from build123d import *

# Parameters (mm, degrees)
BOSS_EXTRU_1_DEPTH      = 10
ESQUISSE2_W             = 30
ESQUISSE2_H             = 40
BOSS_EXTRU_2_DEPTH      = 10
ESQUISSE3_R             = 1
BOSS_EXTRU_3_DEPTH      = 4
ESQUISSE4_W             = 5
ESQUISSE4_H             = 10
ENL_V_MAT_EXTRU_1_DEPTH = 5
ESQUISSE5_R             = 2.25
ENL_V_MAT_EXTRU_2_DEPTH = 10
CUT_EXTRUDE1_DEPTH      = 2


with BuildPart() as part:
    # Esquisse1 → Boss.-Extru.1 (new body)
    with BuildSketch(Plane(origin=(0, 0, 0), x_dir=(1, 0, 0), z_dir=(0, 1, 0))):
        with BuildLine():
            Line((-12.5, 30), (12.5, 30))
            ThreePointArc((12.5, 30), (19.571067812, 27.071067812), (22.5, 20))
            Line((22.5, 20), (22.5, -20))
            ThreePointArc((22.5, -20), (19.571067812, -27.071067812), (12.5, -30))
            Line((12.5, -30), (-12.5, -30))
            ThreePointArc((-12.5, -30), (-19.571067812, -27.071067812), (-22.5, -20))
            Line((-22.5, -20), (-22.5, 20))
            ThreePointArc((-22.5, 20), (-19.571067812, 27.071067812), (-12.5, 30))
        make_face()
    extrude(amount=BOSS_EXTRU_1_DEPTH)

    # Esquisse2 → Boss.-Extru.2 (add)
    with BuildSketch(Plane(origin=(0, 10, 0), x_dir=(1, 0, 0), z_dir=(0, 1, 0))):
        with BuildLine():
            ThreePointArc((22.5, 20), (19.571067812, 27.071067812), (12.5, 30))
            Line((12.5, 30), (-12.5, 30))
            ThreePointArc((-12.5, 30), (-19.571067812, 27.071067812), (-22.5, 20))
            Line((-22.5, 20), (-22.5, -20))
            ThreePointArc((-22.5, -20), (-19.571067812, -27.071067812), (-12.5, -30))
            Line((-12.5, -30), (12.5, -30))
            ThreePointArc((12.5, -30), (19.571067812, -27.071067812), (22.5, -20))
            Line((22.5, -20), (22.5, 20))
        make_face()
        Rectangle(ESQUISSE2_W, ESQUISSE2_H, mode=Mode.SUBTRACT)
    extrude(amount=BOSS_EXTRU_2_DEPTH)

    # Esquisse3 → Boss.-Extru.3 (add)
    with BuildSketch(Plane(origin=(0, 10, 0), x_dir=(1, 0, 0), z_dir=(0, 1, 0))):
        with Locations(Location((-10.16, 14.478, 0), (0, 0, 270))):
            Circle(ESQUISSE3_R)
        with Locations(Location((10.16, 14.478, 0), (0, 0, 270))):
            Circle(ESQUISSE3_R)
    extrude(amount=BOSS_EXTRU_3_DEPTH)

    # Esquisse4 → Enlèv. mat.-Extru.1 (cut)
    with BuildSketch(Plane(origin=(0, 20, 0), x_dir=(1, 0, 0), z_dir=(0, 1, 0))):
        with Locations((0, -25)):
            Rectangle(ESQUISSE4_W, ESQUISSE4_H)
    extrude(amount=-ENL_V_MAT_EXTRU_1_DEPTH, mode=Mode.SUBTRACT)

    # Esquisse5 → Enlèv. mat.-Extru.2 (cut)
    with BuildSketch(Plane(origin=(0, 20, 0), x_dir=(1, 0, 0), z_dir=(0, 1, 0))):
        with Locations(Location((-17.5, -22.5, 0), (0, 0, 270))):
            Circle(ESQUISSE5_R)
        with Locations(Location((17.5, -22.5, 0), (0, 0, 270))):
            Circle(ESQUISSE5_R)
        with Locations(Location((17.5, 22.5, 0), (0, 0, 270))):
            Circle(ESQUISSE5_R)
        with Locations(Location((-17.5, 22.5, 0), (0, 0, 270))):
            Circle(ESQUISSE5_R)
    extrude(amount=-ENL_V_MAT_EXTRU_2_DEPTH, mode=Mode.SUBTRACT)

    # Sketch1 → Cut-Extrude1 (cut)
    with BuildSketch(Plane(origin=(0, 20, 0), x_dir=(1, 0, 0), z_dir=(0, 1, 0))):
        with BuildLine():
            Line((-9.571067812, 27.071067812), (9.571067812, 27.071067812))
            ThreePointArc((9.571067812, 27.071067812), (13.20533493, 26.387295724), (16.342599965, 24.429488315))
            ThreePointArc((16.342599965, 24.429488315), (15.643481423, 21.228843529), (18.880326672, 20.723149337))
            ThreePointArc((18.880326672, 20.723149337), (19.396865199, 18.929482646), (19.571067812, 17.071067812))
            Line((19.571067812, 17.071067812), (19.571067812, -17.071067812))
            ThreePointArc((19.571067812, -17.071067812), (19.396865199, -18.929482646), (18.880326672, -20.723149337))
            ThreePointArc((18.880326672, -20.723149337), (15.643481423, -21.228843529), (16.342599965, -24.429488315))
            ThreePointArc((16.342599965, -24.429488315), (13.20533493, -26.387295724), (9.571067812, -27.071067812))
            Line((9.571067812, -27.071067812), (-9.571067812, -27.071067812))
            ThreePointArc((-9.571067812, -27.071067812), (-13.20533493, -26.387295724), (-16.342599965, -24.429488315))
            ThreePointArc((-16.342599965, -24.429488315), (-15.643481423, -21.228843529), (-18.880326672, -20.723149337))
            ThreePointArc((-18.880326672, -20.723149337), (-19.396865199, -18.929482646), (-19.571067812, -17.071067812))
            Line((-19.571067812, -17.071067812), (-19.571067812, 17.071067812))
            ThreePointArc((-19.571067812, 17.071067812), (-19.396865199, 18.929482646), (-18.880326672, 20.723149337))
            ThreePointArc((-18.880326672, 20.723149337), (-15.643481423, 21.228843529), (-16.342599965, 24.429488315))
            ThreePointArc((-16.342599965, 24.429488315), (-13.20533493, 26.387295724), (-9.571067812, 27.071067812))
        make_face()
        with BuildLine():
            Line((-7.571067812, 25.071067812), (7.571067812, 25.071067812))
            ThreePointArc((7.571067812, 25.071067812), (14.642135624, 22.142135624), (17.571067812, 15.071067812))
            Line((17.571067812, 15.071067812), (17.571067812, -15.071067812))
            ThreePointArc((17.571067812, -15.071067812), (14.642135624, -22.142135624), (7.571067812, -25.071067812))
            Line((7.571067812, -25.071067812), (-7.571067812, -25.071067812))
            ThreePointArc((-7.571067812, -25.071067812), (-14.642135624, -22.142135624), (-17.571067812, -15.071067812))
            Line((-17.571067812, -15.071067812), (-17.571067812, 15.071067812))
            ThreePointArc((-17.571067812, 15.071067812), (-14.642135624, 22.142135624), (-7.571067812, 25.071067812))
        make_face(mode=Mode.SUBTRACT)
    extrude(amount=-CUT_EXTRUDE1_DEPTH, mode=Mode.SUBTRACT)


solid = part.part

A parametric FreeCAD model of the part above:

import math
import FreeCAD as App
import Part
import Sketcher
Q = App.Units.Quantity


def add_polygon(sketch, points):
    """Adds a closed chain of lines whose ends are joined by coincident constraints."""
    first, n = sketch.GeometryCount, len(points)
    for a, b in zip(points, points[1:] + points[:1]):
        sketch.addGeometry(Part.LineSegment(App.Vector(*a, 0), App.Vector(*b, 0)), False)
    for i in range(n):
        sketch.addConstraint(Sketcher.Constraint("Coincident", first + i, 2, first + (i + 1) % n, 1))

doc = App.newDocument("Part")
body = doc.addObject("PartDesign::Body", "Body")

# Sketch on XZ plane
sketch1 = body.newObject("Sketcher::SketchObject", "Sketch")
sketch1.AttachmentSupport = (doc.getObject("XZ_Plane"), [""])
sketch1.MapMode = "FlatFace"
sketch1.addGeometry([
    Part.LineSegment(App.Vector(12.5, -30, 0), App.Vector(-12.5, -30, 0)),  # 0
    Part.ArcOfCircle(Part.Circle(App.Vector(-12.5, -20, 0), App.Vector(0, 0, 1), 10), math.radians(180), math.radians(270)),  # 1
    Part.LineSegment(App.Vector(-22.5, -20, 0), App.Vector(-22.5, 20, 0)),  # 2
    Part.ArcOfCircle(Part.Circle(App.Vector(-12.5, 20, 0), App.Vector(0, 0, 1), 10), math.radians(90), math.radians(180)),  # 3
    Part.LineSegment(App.Vector(-12.5, 30, 0), App.Vector(12.5, 30, 0)),  # 4
    Part.ArcOfCircle(Part.Circle(App.Vector(12.5, 20, 0), App.Vector(0, 0, 1), 10), math.radians(0), math.radians(90)),  # 5
    Part.LineSegment(App.Vector(22.5, 20, 0), App.Vector(22.5, -20, 0)),  # 6
    Part.ArcOfCircle(Part.Circle(App.Vector(12.5, -20, 0), App.Vector(0, 0, 1), 10), math.radians(-90), math.radians(0)),  # 7
], False)
sketch1.addConstraint([
    Sketcher.Constraint("Tangent", 0, 2, 1, 2),
    Sketcher.Constraint("Tangent", 1, 1, 2, 1),
    Sketcher.Constraint("Tangent", 2, 2, 3, 2),
    Sketcher.Constraint("Tangent", 3, 1, 4, 1),
    Sketcher.Constraint("Tangent", 4, 2, 5, 2),
    Sketcher.Constraint("Tangent", 5, 1, 6, 1),
    Sketcher.Constraint("Tangent", 6, 2, 7, 2),
    Sketcher.Constraint("Tangent", 7, 1, 0, 1),
    Sketcher.Constraint("Horizontal", 0),
    Sketcher.Constraint("Vertical", 2),
    Sketcher.Constraint("Horizontal", 4),
    Sketcher.Constraint("Vertical", 6),
    Sketcher.Constraint("Equal", 1, 3),
    Sketcher.Constraint("Equal", 3, 5),
    Sketcher.Constraint("Equal", 5, 7),
    Sketcher.Constraint("Symmetric", 1, 3, 5, 3, -1, 1),
    Sketcher.Constraint("Radius", 1, Q("10 mm")),
    Sketcher.Constraint("DistanceX", 0, 2, 0, 1, Q("25 mm")),
    Sketcher.Constraint("DistanceY", 2, 1, 2, 2, Q("40 mm")),
])
pad1 = body.newObject("PartDesign::Pad", "Pad")
pad1.Profile = sketch1
pad1.Length = 10
pad1.Reversed = True

# Sketch on XZ plane
sketch2 = body.newObject("Sketcher::SketchObject", "Sketch001")
sketch2.AttachmentSupport = (doc.getObject("XZ_Plane"), [""])
sketch2.MapMode = "FlatFace"
sketch2.AttachmentOffset = App.Placement(App.Vector(0, 0, -10), App.Rotation())
sketch2.addGeometry(Part.ArcOfCircle(Part.Circle(App.Vector(12.5, -20, 0), App.Vector(0, 0, 1), 10), math.radians(-90), math.radians(0)), False)  # 0
sketch2.addGeometry(Part.LineSegment(App.Vector(12.5, -30, 0), App.Vector(-12.5, -30, 0)), False)  # 1
sketch2.addGeometry(Part.ArcOfCircle(Part.Circle(App.Vector(-12.5, -20, 0), App.Vector(0, 0, 1), 10), math.radians(180), math.radians(270)), False)  # 2
sketch2.addGeometry(Part.LineSegment(App.Vector(-22.5, -20, 0), App.Vector(-22.5, 20, 0)), False)  # 3
sketch2.addGeometry(Part.ArcOfCircle(Part.Circle(App.Vector(-12.5, 20, 0), App.Vector(0, 0, 1), 10), math.radians(90), math.radians(180)), False)  # 4
sketch2.addGeometry(Part.LineSegment(App.Vector(-12.5, 30, 0), App.Vector(12.5, 30, 0)), False)  # 5
sketch2.addGeometry(Part.ArcOfCircle(Part.Circle(App.Vector(12.5, 20, 0), App.Vector(0, 0, 1), 10), math.radians(0), math.radians(90)), False)  # 6
sketch2.addGeometry(Part.LineSegment(App.Vector(22.5, 20, 0), App.Vector(22.5, -20, 0)), False)  # 7
add_polygon(sketch2, [(15, 20), (-15, 20), (-15, -20), (15, -20)])  # lines 8-11
sketch2.addConstraint([
    Sketcher.Constraint("Tangent", 0, 1, 1, 1),
    Sketcher.Constraint("Tangent", 1, 2, 2, 2),
    Sketcher.Constraint("Tangent", 2, 1, 3, 1),
    Sketcher.Constraint("Tangent", 3, 2, 4, 2),
    Sketcher.Constraint("Tangent", 4, 1, 5, 1),
    Sketcher.Constraint("Tangent", 5, 2, 6, 2),
    Sketcher.Constraint("Tangent", 6, 1, 7, 1),
    Sketcher.Constraint("Tangent", 7, 2, 0, 2),
    Sketcher.Constraint("Horizontal", 1),
    Sketcher.Constraint("Vertical", 3),
    Sketcher.Constraint("Horizontal", 5),
    Sketcher.Constraint("Vertical", 7),
    Sketcher.Constraint("Horizontal", 8),
    Sketcher.Constraint("Vertical", 9),
    Sketcher.Constraint("Horizontal", 10),
    Sketcher.Constraint("Vertical", 11),
    Sketcher.Constraint("Equal", 0, 2),
    Sketcher.Constraint("Equal", 2, 4),
    Sketcher.Constraint("Equal", 4, 6),
    Sketcher.Constraint("Symmetric", 0, 3, 4, 3, -1, 1),
    Sketcher.Constraint("Symmetric", 8, 2, 10, 2, -1, 1),
    Sketcher.Constraint("Horizontal", 6, 1, 8, 2),
    Sketcher.Constraint("Radius", 0, Q("10 mm")),
    Sketcher.Constraint("DistanceX", 1, 2, 1, 1, Q("25 mm")),
    Sketcher.Constraint("DistanceX", 8, 2, 8, 1, Q("30 mm")),
    Sketcher.Constraint("DistanceY", 3, 1, 3, 2, Q("40 mm")),
])
pad2 = body.newObject("PartDesign::Pad", "Pad001")
pad2.Profile = sketch2
pad2.Length = 10
pad2.Reversed = True

# Sketch on XZ plane
sketch3 = body.newObject("Sketcher::SketchObject", "Sketch002")
sketch3.AttachmentSupport = (doc.getObject("XZ_Plane"), [""])
sketch3.MapMode = "FlatFace"
sketch3.AttachmentOffset = App.Placement(App.Vector(0, 0, -10), App.Rotation())
sketch3.addGeometry([
    Part.Circle(App.Vector(-10.16, -14.478, 0), App.Vector(0, 0, 1), 1),
    Part.Circle(App.Vector(10.16, -14.478, 0), App.Vector(0, 0, 1), 1),
], False)
sketch3.addConstraint([
    Sketcher.Constraint("Equal", 0, 1),
    Sketcher.Constraint("Symmetric", 0, 3, 1, 3, -2),
    Sketcher.Constraint("Diameter", 0, Q("2 mm")),
    Sketcher.Constraint("DistanceX", 0, 3, -1, 1, Q("10.16 mm")),
    Sketcher.Constraint("DistanceY", 0, 3, -1, 1, Q("14.478 mm")),
])
pad3 = body.newObject("PartDesign::Pad", "Pad002")
pad3.Profile = sketch3
pad3.Length = 4
pad3.Reversed = True

# Sketch on XZ plane
sketch4 = body.newObject("Sketcher::SketchObject", "Sketch003")
sketch4.AttachmentSupport = (doc.getObject("XZ_Plane"), [""])
sketch4.MapMode = "FlatFace"
sketch4.AttachmentOffset = App.Placement(App.Vector(0, 0, -20), App.Rotation())
add_polygon(sketch4, [(-2.5, 20), (-2.5, 30), (2.5, 30), (2.5, 20)])  # lines 0-3
sketch4.addConstraint([
    Sketcher.Constraint("Vertical", 0),
    Sketcher.Constraint("Horizontal", 1),
    Sketcher.Constraint("Vertical", 2),
    Sketcher.Constraint("Horizontal", 3),
    Sketcher.Constraint("DistanceX", 1, 1, 1, 2, Q("5 mm")),
    Sketcher.Constraint("DistanceY", 0, 1, 0, 2, Q("10 mm")),
    Sketcher.Constraint("DistanceY", -1, 1, 0, 2, Q("30 mm")),
    Sketcher.Constraint("DistanceX", 0, 2, -1, 1, Q("2.5 mm")),
])
pocket1 = body.newObject("PartDesign::Pocket", "Pocket")
pocket1.Profile = sketch4
pocket1.Length = 5
pocket1.Reversed = True

# Sketch on XZ plane
sketch5 = body.newObject("Sketcher::SketchObject", "Sketch004")
sketch5.AttachmentSupport = (doc.getObject("XZ_Plane"), [""])
sketch5.MapMode = "FlatFace"
sketch5.AttachmentOffset = App.Placement(App.Vector(0, 0, -20), App.Rotation())
sketch5.addGeometry([
    Part.Circle(App.Vector(-17.5, 22.5, 0), App.Vector(0, 0, 1), 2.25),
    Part.Circle(App.Vector(17.5, 22.5, 0), App.Vector(0, 0, 1), 2.25),
    Part.Circle(App.Vector(17.5, -22.5, 0), App.Vector(0, 0, 1), 2.25),
    Part.Circle(App.Vector(-17.5, -22.5, 0), App.Vector(0, 0, 1), 2.25),
], False)
sketch5.addConstraint([
    Sketcher.Constraint("Equal", 0, 1),
    Sketcher.Constraint("Equal", 1, 2),
    Sketcher.Constraint("Equal", 2, 3),
    Sketcher.Constraint("Symmetric", 0, 3, 2, 3, -1, 1),
    Sketcher.Constraint("Symmetric", 1, 3, 3, 3, -1, 1),
    Sketcher.Constraint("Symmetric", 0, 3, 1, 3, -2),
    Sketcher.Constraint("Diameter", 0, Q("4.5 mm")),
    Sketcher.Constraint("DistanceX", 0, 3, 1, 3, Q("35 mm")),
    Sketcher.Constraint("DistanceY", 2, 3, 1, 3, Q("45 mm")),
])
pocket2 = body.newObject("PartDesign::Pocket", "Pocket001")
pocket2.Profile = sketch5
pocket2.Length = 10
pocket2.Reversed = True

# Sketch on XZ plane
sketch6 = body.newObject("Sketcher::SketchObject", "Sketch005")
sketch6.AttachmentSupport = (doc.getObject("XZ_Plane"), [""])
sketch6.MapMode = "FlatFace"
sketch6.AttachmentOffset = App.Placement(App.Vector(0, 0, -20), App.Rotation())
sketch6.addGeometry([
    Part.LineSegment(App.Vector(9.571068, -27.071068, 0), App.Vector(-9.571068, -27.071068, 0)),  # 0
    Part.ArcOfCircle(Part.Circle(App.Vector(-9.571068, -17.071068, 0), App.Vector(0, 0, 1), 10), math.radians(-132.621584), math.radians(-90)),  # 1
    Part.ArcOfCircle(Part.Circle(App.Vector(-17.5, -22.5, 0), App.Vector(0, 0, 1), 2.25), math.radians(-59.04264), math.radians(127.84145)),  # 2
    Part.ArcOfCircle(Part.Circle(App.Vector(-9.571068, -17.071068, 0), App.Vector(0, 0, 1), 10), math.radians(-180), math.radians(-158.579607)),  # 3
    Part.LineSegment(App.Vector(-19.571068, -17.071068, 0), App.Vector(-19.571068, 17.071068, 0)),  # 4
    Part.ArcOfCircle(Part.Circle(App.Vector(-9.571068, 17.071068, 0), App.Vector(0, 0, 1), 10), math.radians(158.579607), math.radians(180)),  # 5
    Part.ArcOfCircle(Part.Circle(App.Vector(-17.5, 22.5, 0), App.Vector(0, 0, 1), 2.25), math.radians(-127.84145), math.radians(59.04264)),  # 6
    Part.ArcOfCircle(Part.Circle(App.Vector(-9.571068, 17.071068, 0), App.Vector(0, 0, 1), 10), math.radians(90), math.radians(132.621584)),  # 7
    Part.LineSegment(App.Vector(-9.571068, 27.071068, 0), App.Vector(9.571068, 27.071068, 0)),  # 8
    Part.ArcOfCircle(Part.Circle(App.Vector(9.571068, 17.071068, 0), App.Vector(0, 0, 1), 10), math.radians(47.378416), math.radians(90)),  # 9
    Part.ArcOfCircle(Part.Circle(App.Vector(17.5, 22.5, 0), App.Vector(0, 0, 1), 2.25), math.radians(120.95736), math.radians(307.84145)),  # 10
    Part.ArcOfCircle(Part.Circle(App.Vector(9.571068, 17.071068, 0), App.Vector(0, 0, 1), 10), math.radians(0), math.radians(21.420393)),  # 11
    Part.LineSegment(App.Vector(19.571068, 17.071068, 0), App.Vector(19.571068, -17.071068, 0)),  # 12
    Part.ArcOfCircle(Part.Circle(App.Vector(9.571068, -17.071068, 0), App.Vector(0, 0, 1), 10), math.radians(-21.420393), math.radians(0)),  # 13
    Part.ArcOfCircle(Part.Circle(App.Vector(17.5, -22.5, 0), App.Vector(0, 0, 1), 2.25), math.radians(52.15855), math.radians(239.04264)),  # 14
    Part.ArcOfCircle(Part.Circle(App.Vector(9.571068, -17.071068, 0), App.Vector(0, 0, 1), 10), math.radians(-90), math.radians(-47.378416)),  # 15
    Part.LineSegment(App.Vector(-7.571068, -25.071068, 0), App.Vector(7.571068, -25.071068, 0)),  # 16
    Part.ArcOfCircle(Part.Circle(App.Vector(7.571068, -15.071068, 0), App.Vector(0, 0, 1), 10), math.radians(-90), math.radians(0)),  # 17
    Part.LineSegment(App.Vector(17.571068, -15.071068, 0), App.Vector(17.571068, 15.071068, 0)),  # 18
    Part.ArcOfCircle(Part.Circle(App.Vector(7.571068, 15.071068, 0), App.Vector(0, 0, 1), 10), math.radians(0), math.radians(90)),  # 19
    Part.LineSegment(App.Vector(7.571068, 25.071068, 0), App.Vector(-7.571068, 25.071068, 0)),  # 20
    Part.ArcOfCircle(Part.Circle(App.Vector(-7.571068, 15.071068, 0), App.Vector(0, 0, 1), 10), math.radians(90), math.radians(180)),  # 21
    Part.LineSegment(App.Vector(-17.571068, 15.071068, 0), App.Vector(-17.571068, -15.071068, 0)),  # 22
    Part.ArcOfCircle(Part.Circle(App.Vector(-7.571068, -15.071068, 0), App.Vector(0, 0, 1), 10), math.radians(180), math.radians(270)),  # 23
], False)
sketch6.addConstraint([
    Sketcher.Constraint("Tangent", 0, 2, 1, 2),
    Sketcher.Constraint("Coincident", 1, 1, 2, 1),
    Sketcher.Constraint("Coincident", 2, 2, 3, 2),
    Sketcher.Constraint("Tangent", 3, 1, 4, 1),
    Sketcher.Constraint("Tangent", 4, 2, 5, 2),
    Sketcher.Constraint("Coincident", 5, 1, 6, 1),
    Sketcher.Constraint("Coincident", 6, 2, 7, 2),
    Sketcher.Constraint("Tangent", 7, 1, 8, 1),
    Sketcher.Constraint("Tangent", 8, 2, 9, 2),
    Sketcher.Constraint("Coincident", 9, 1, 10, 1),
    Sketcher.Constraint("Coincident", 10, 2, 11, 2),
    Sketcher.Constraint("Tangent", 11, 1, 12, 1),
    Sketcher.Constraint("Tangent", 12, 2, 13, 2),
    Sketcher.Constraint("Coincident", 13, 1, 14, 1),
    Sketcher.Constraint("Coincident", 14, 2, 15, 2),
    Sketcher.Constraint("Tangent", 15, 1, 0, 1),
    Sketcher.Constraint("Tangent", 16, 2, 17, 1),
    Sketcher.Constraint("Tangent", 17, 2, 18, 1),
    Sketcher.Constraint("Tangent", 18, 2, 19, 1),
    Sketcher.Constraint("Tangent", 19, 2, 20, 1),
    Sketcher.Constraint("Tangent", 20, 2, 21, 1),
    Sketcher.Constraint("Tangent", 21, 2, 22, 1),
    Sketcher.Constraint("Tangent", 22, 2, 23, 1),
    Sketcher.Constraint("Tangent", 23, 2, 16, 1),
    Sketcher.Constraint("Horizontal", 0),
    Sketcher.Constraint("Vertical", 4),
    Sketcher.Constraint("Horizontal", 8),
    Sketcher.Constraint("Vertical", 12),
    Sketcher.Constraint("Horizontal", 16),
    Sketcher.Constraint("Vertical", 18),
    Sketcher.Constraint("Horizontal", 20),
    Sketcher.Constraint("Vertical", 22),
    Sketcher.Constraint("Coincident", 3, 3, 1, 3),
    Sketcher.Constraint("Coincident", 7, 3, 5, 3),
    Sketcher.Constraint("Coincident", 11, 3, 9, 3),
    Sketcher.Constraint("Coincident", 15, 3, 13, 3),
    Sketcher.Constraint("Equal", 1, 3),
    Sketcher.Constraint("Equal", 3, 5),
    Sketcher.Constraint("Equal", 2, 6),
    Sketcher.Constraint("Equal", 5, 7),
    Sketcher.Constraint("Equal", 7, 9),
    Sketcher.Constraint("Equal", 6, 10),
    Sketcher.Constraint("Equal", 9, 11),
    Sketcher.Constraint("Equal", 11, 13),
    Sketcher.Constraint("Equal", 10, 14),
    Sketcher.Constraint("Equal", 13, 15),
    Sketcher.Constraint("Equal", 15, 17),
    Sketcher.Constraint("Equal", 17, 19),
    Sketcher.Constraint("Equal", 19, 21),
    Sketcher.Constraint("Equal", 21, 23),
    Sketcher.Constraint("Symmetric", 1, 3, 9, 3, -1, 1),
    Sketcher.Constraint("Symmetric", 2, 3, 10, 3, -1, 1),
    Sketcher.Constraint("Symmetric", 6, 3, 14, 3, -1, 1),
    Sketcher.Constraint("Symmetric", 17, 3, 21, 3, -1, 1),
    Sketcher.Constraint("Symmetric", 6, 3, 10, 3, -2),
    Sketcher.Constraint("Radius", 1, Q("10 mm")),
    Sketcher.Constraint("Radius", 2, Q("2.25 mm")),
    Sketcher.Constraint("DistanceY", 2, 3, 6, 3, Q("45 mm")),
    Sketcher.Constraint("DistanceX", 6, 3, 10, 3, Q("35 mm")),
    Sketcher.Constraint("DistanceX", 17, 3, 13, 3, Q("2 mm")),
    Sketcher.Constraint("DistanceY", 13, 3, 17, 3, Q("2 mm")),
    Sketcher.Constraint("DistanceX", 1, 1, -1, 1, Q("16.3426 mm")),
    Sketcher.Constraint("DistanceX", 0, 2, 0, 1, Q("19.142136 mm")),
])
pocket3 = body.newObject("PartDesign::Pocket", "Pocket002")
pocket3.Profile = sketch6
pocket3.Length = 2
pocket3.Reversed = True

doc.recompute()
